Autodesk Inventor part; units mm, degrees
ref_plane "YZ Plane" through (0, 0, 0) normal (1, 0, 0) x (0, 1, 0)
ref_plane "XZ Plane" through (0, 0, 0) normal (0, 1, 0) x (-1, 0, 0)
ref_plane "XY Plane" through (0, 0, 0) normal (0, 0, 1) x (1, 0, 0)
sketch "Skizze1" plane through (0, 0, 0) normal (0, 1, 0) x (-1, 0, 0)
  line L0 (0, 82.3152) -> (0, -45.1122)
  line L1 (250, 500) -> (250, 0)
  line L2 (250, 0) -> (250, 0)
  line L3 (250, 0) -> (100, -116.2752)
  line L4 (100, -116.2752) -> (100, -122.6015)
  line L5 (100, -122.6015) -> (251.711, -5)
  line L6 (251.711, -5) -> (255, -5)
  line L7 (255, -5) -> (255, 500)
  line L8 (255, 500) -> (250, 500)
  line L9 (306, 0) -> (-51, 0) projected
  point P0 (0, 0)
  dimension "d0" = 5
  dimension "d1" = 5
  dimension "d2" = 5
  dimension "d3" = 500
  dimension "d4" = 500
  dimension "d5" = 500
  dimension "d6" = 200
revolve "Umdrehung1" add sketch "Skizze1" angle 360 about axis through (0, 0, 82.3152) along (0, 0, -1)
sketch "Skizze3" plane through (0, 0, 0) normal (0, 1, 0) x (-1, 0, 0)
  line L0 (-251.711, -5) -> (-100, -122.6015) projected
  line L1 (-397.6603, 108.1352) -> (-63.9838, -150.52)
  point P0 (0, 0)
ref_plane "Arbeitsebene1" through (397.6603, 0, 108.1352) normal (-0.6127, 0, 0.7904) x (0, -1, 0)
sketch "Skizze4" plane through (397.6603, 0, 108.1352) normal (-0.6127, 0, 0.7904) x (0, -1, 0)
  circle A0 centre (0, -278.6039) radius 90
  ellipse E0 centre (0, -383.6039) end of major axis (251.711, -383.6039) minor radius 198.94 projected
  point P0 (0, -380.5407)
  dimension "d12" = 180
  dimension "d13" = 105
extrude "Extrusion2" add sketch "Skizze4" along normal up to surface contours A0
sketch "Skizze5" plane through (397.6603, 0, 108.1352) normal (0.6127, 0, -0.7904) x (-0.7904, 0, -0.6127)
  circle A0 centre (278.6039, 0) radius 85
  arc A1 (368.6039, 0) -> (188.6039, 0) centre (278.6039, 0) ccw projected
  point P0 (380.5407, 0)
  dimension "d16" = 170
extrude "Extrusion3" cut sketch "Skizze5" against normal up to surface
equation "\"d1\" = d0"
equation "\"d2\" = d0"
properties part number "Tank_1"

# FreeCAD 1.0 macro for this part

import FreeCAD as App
import Part
import Sketcher

V = App.Vector
Q = App.Units.Quantity


def add_polygon(sketch, points):
    """Adds a closed chain of lines whose ends are joined by coincident constraints."""
    first, n = sketch.GeometryCount, len(points)
    for a, b in zip(points, points[1:] + points[:1]):
        sketch.addGeometry(Part.LineSegment(App.Vector(*a, 0), App.Vector(*b, 0)), False)
    for i in range(n):
        sketch.addConstraint(Sketcher.Constraint("Coincident", first + i, 2, first + (i + 1) % n, 1))

doc = App.newDocument("Part")
body = doc.addObject("PartDesign::Body", "Body")

# Sketch on XZ plane
sketch1 = doc.addObject("Sketcher::SketchObject", "Sketch")
body.addObject(sketch1)
sketch1.AttachmentSupport = (doc.XZ_Plane, [""])
sketch1.MapMode = "FlatFace"
add_polygon(sketch1, [(-255, 500), (-250, 500), (-250, 0), (-100, -116.3), (-100, -122.6), (-251.7, -5), (-255, -5)])  # lines 0-6
sketch1.addConstraint([
    Sketcher.Constraint("Horizontal", 0),
    Sketcher.Constraint("Vertical", 1),
    Sketcher.Constraint("Vertical", 3),
    Sketcher.Constraint("Horizontal", 5),
    Sketcher.Constraint("Vertical", 6),
    Sketcher.Constraint("PointOnObject", 1, 2, -1),
    Sketcher.Constraint("Parallel", 2, 4),
    Sketcher.Constraint("DistanceX", 0, 1, 0, 2, Q("5 mm")),
    Sketcher.Constraint("DistanceY", 1, 2, 1, 1, Q("500 mm")),
    Sketcher.Constraint("DistanceY", 4, 2, -1, 1, Q("5 mm")),
    Sketcher.Constraint("DistanceX", 0, 2, -1, 1, Q("250 mm")),
    Sketcher.Constraint("DistanceX", 2, 2, -1, 1, Q("100 mm")),
    Sketcher.Constraint("DistanceX", 5, 2, 5, 1, Q("3.289 mm")),
    Sketcher.Constraint("Distance", 4, Q("191.954 mm")),
])
revolution = doc.addObject("PartDesign::Revolution", "Revolution")
body.addObject(revolution)
revolution.Profile = sketch1
revolution.ReferenceAxis = (sketch1, ["V_Axis"])
revolution.Angle = 360

# Sketch on an angled plane
sketch2 = doc.addObject("Sketcher::SketchObject", "Sketch001")
body.addObject(sketch2)
sketch2.Placement = App.Placement(V(397.6603, 0, 108.1352), App.Rotation(V(0, -1, 0), V(0.790347266, 0, 0.612659122), V(-0.612659122, 0, 0.790347266), "ZXY"))
sketch2.addGeometry(Part.Circle(V(0, -279, 0), V(0, 0, 1), 90), False)
sketch2.addConstraint([
    Sketcher.Constraint("PointOnObject", 0, 3, -2),
    Sketcher.Constraint("Diameter", 0, Q("180 mm")),
    Sketcher.Constraint("DistanceY", 0, 3, -1, 1, Q("278.604 mm")),
])
pad1 = doc.addObject("PartDesign::Pad", "Pad")
body.addObject(pad1)
pad1.Profile = sketch2
pad1.Type = "UpToFirst"

# Sketch on an angled plane
sketch3 = doc.addObject("Sketcher::SketchObject", "Sketch002")
body.addObject(sketch3)
sketch3.Placement = App.Placement(V(397.6603, 0, 108.1352), App.Rotation(V(-0.790347266, 0, -0.612659122), V(0, 1.000000001, 0), V(0.612659122, 0, -0.790347266), "ZXY"))
sketch3.addGeometry(Part.Circle(V(279, 0, 0), V(0, 0, 1), 85), False)
sketch3.addConstraint([
    Sketcher.Constraint("PointOnObject", 0, 3, -1),
    Sketcher.Constraint("Diameter", 0, Q("170 mm")),
    Sketcher.Constraint("DistanceX", -1, 1, 0, 3, Q("278.604 mm")),
])
pocket1 = doc.addObject("PartDesign::Pocket", "Pocket")
body.addObject(pocket1)
pocket1.Profile = sketch3
pocket1.Type = "UpToFirst"

doc.recompute()
